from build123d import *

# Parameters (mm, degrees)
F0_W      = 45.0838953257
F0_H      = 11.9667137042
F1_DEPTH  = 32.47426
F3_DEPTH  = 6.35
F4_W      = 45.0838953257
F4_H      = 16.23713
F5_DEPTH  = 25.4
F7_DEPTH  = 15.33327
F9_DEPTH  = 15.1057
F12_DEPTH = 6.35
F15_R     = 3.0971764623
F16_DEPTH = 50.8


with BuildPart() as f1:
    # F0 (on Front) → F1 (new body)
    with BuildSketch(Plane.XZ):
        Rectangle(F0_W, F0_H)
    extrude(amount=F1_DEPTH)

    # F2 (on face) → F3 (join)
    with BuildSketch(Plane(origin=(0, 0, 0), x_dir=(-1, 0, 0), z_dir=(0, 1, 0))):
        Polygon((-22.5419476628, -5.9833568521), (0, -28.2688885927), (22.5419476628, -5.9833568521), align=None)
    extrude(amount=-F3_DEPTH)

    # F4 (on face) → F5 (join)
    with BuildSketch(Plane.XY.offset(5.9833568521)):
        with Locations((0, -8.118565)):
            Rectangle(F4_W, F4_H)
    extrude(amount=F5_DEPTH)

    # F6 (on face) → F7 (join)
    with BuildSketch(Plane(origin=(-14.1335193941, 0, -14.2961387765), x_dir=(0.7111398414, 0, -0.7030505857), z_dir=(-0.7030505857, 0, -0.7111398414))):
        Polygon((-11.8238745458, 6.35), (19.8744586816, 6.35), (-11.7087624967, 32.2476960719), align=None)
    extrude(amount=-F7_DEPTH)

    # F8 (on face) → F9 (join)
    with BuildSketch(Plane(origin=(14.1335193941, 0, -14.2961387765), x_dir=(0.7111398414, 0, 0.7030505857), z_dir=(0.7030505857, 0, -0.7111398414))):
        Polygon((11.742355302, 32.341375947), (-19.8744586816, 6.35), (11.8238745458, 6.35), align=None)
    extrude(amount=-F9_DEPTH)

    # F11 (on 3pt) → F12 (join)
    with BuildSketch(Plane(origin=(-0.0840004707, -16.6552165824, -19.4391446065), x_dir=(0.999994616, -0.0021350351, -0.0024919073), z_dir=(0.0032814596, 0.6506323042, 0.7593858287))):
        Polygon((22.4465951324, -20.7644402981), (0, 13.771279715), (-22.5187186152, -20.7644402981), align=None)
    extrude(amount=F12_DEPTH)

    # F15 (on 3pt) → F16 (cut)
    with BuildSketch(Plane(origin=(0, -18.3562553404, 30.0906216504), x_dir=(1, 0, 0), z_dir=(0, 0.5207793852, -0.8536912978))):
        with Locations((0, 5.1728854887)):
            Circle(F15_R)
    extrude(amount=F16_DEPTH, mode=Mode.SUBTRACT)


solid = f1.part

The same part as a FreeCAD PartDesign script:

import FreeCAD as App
import Part
import Sketcher
from FreeCAD import Vector
Q = App.Units.Quantity

doc = App.newDocument("Part")
body = doc.addObject("PartDesign::Body", "Body")

sketch1 = body.newObject("Sketcher::SketchObject", "Sketch")
sketch1.AttachmentSupport = (doc.getObject("XZ_Plane"), [""])
sketch1.MapMode = "FlatFace"
sketch1.addGeometry(Part.LineSegment(Vector(-23, 6, 0), Vector(-23, -6, 0)), False)
sketch1.addGeometry(Part.LineSegment(Vector(-23, -6, 0), Vector(23, -6, 0)), False)
sketch1.addGeometry(Part.LineSegment(Vector(23, -6, 0), Vector(23, 6, 0)), False)
sketch1.addGeometry(Part.LineSegment(Vector(23, 6, 0), Vector(-23, 6, 0)), False)
sketch1.addConstraint(Sketcher.Constraint("Coincident", 0, 2, 1, 1))
sketch1.addConstraint(Sketcher.Constraint("Coincident", 1, 2, 2, 1))
sketch1.addConstraint(Sketcher.Constraint("Coincident", 2, 2, 3, 1))
sketch1.addConstraint(Sketcher.Constraint("Coincident", 3, 2, 0, 1))
sketch1.addConstraint(Sketcher.Constraint("Vertical", 0))
sketch1.addConstraint(Sketcher.Constraint("Horizontal", 1))
sketch1.addConstraint(Sketcher.Constraint("Vertical", 2))
sketch1.addConstraint(Sketcher.Constraint("Horizontal", 3))
sketch1.addConstraint(Sketcher.Constraint("Symmetric", 0, 2, 2, 2, -1, 1))
sketch1.addConstraint(Sketcher.Constraint("DistanceX", 1, 1, 1, 2, Q("45.083895 mm")))
sketch1.addConstraint(Sketcher.Constraint("DistanceY", 0, 2, 0, 1, Q("11.966714 mm")))
pad1 = body.newObject("PartDesign::Pad", "Pad")
pad1.Profile = sketch1
pad1.Length = 32.47426

sketch2 = body.newObject("Sketcher::SketchObject", "Sketch001")
sketch2.AttachmentSupport = (doc.getObject("XZ_Plane"), [""])
sketch2.MapMode = "FlatFace"
sketch2.addGeometry(Part.LineSegment(Vector(23, -6, 0), Vector(0, -28, 0)), False)
sketch2.addGeometry(Part.LineSegment(Vector(0, -28, 0), Vector(-23, -6, 0)), False)
sketch2.addGeometry(Part.LineSegment(Vector(-23, -6, 0), Vector(23, -6, 0)), False)
sketch2.addConstraint(Sketcher.Constraint("Coincident", 0, 2, 1, 1))
sketch2.addConstraint(Sketcher.Constraint("Coincident", 1, 2, 2, 1))
sketch2.addConstraint(Sketcher.Constraint("Coincident", 2, 2, 0, 1))
sketch2.addConstraint(Sketcher.Constraint("Horizontal", 2))
sketch2.addConstraint(Sketcher.Constraint("PointOnObject", 0, 2, -2))
sketch2.addConstraint(Sketcher.Constraint("Equal", 0, 1))
sketch2.addConstraint(Sketcher.Constraint("DistanceX", 2, 1, 2, 2, Q("45.083895 mm")))
sketch2.addConstraint(Sketcher.Constraint("DistanceY", 0, 2, -1, 1, Q("28.268889 mm")))
sketch2.addConstraint(Sketcher.Constraint("DistanceY", 0, 2, 1, 2, Q("22.285532 mm")))
pad2 = body.newObject("PartDesign::Pad", "Pad001")
pad2.Profile = sketch2
pad2.Length = Q("0.25 in")

sketch3 = body.newObject("Sketcher::SketchObject", "Sketch002")
sketch3.AttachmentSupport = (doc.getObject("XY_Plane"), [""])
sketch3.MapMode = "FlatFace"
sketch3.AttachmentOffset = App.Placement(Vector(0, 0, 5.983357), App.Rotation())
sketch3.addGeometry(Part.LineSegment(Vector(-23, 0, 0), Vector(-23, -16, 0)), False)
sketch3.addGeometry(Part.LineSegment(Vector(-23, -16, 0), Vector(23, -16, 0)), False)
sketch3.addGeometry(Part.LineSegment(Vector(23, -16, 0), Vector(23, 0, 0)), False)
sketch3.addGeometry(Part.LineSegment(Vector(23, 0, 0), Vector(-23, 0, 0)), False)
sketch3.addConstraint(Sketcher.Constraint("Coincident", 0, 2, 1, 1))
sketch3.addConstraint(Sketcher.Constraint("Coincident", 1, 2, 2, 1))
sketch3.addConstraint(Sketcher.Constraint("Coincident", 2, 2, 3, 1))
sketch3.addConstraint(Sketcher.Constraint("Coincident", 3, 2, 0, 1))
sketch3.addConstraint(Sketcher.Constraint("Vertical", 0))
sketch3.addConstraint(Sketcher.Constraint("Horizontal", 1))
sketch3.addConstraint(Sketcher.Constraint("Vertical", 2))
sketch3.addConstraint(Sketcher.Constraint("Horizontal", 3))
sketch3.addConstraint(Sketcher.Constraint("Symmetric", 2, 2, 3, 2, -1, 1))
sketch3.addConstraint(Sketcher.Constraint("DistanceY", 0, 2, 0, 1, Q("16.23713 mm")))
sketch3.addConstraint(Sketcher.Constraint("DistanceX", 1, 1, 1, 2, Q("45.083895 mm")))
pad3 = body.newObject("PartDesign::Pad", "Pad002")
pad3.Profile = sketch3
pad3.Length = Q("1 in")

sketch4 = body.newObject("Sketcher::SketchObject", "Sketch003")
sketch4.Placement = App.Placement(Vector(-14.133519, 0, -14.296139), App.Rotation(Vector(0.711139841, 0, -0.703050586), Vector(0, -1, 0), Vector(-0.703050586, 0, -0.711139841), "ZXY"))
sketch4.addGeometry(Part.LineSegment(Vector(-12, 6, 0), Vector(20, 6, 0)), False)
sketch4.addGeometry(Part.LineSegment(Vector(20, 6, 0), Vector(-12, 32, 0)), False)
sketch4.addGeometry(Part.LineSegment(Vector(-12, 32, 0), Vector(-12, 6, 0)), False)
sketch4.addConstraint(Sketcher.Constraint("Coincident", 0, 2, 1, 1))
sketch4.addConstraint(Sketcher.Constraint("Coincident", 1, 2, 2, 1))
sketch4.addConstraint(Sketcher.Constraint("Coincident", 2, 2, 0, 1))
sketch4.addConstraint(Sketcher.Constraint("Horizontal", 0))
sketch4.addConstraint(Sketcher.Constraint("DistanceY", -1, 1, 0, 2, Q("0.25 in")))
sketch4.addConstraint(Sketcher.Constraint("Distance", 1, Q("40.843488 mm")))
sketch4.addConstraint(Sketcher.Constraint("Distance", 2, Q("25.897952 mm")))
sketch4.addConstraint(Sketcher.Constraint("DistanceX", 0, 1, 0, 2, Q("31.698333 mm")))
sketch4.addConstraint(Sketcher.Constraint("DistanceX", -1, 1, 0, 2, Q("19.874459 mm")))
pad4 = body.newObject("PartDesign::Pad", "Pad003")
pad4.Profile = sketch4
pad4.Length = 15.33327
pad4.Reversed = True

sketch5 = body.newObject("Sketcher::SketchObject", "Sketch004")
sketch5.Placement = App.Placement(Vector(14.133519, 0, -14.296139), App.Rotation(Vector(0.711139841, 0, 0.703050586), Vector(0, -1, 0), Vector(0.703050586, 0, -0.711139841), "ZXY"))
sketch5.addGeometry(Part.LineSegment(Vector(12, 32, 0), Vector(-20, 6, 0)), False)
sketch5.addGeometry(Part.LineSegment(Vector(-20, 6, 0), Vector(12, 6, 0)), False)
sketch5.addGeometry(Part.LineSegment(Vector(12, 6, 0), Vector(12, 32, 0)), False)
sketch5.addConstraint(Sketcher.Constraint("Coincident", 0, 2, 1, 1))
sketch5.addConstraint(Sketcher.Constraint("Coincident", 1, 2, 2, 1))
sketch5.addConstraint(Sketcher.Constraint("Coincident", 2, 2, 0, 1))
sketch5.addConstraint(Sketcher.Constraint("Horizontal", 1))
sketch5.addConstraint(Sketcher.Constraint("DistanceY", -1, 1, 0, 2, Q("0.25 in")))
sketch5.addConstraint(Sketcher.Constraint("DistanceX", 1, 1, 1, 2, Q("31.698333 mm")))
sketch5.addConstraint(Sketcher.Constraint("DistanceX", 0, 2, -1, 1, Q("19.874459 mm")))
sketch5.addConstraint(Sketcher.Constraint("DistanceX", 2, 2, 1, 2, Q("0.081519 mm")))
sketch5.addConstraint(Sketcher.Constraint("Distance", 0, Q("40.928896 mm")))
pad5 = body.newObject("PartDesign::Pad", "Pad004")
pad5.Profile = sketch5
pad5.Length = 15.1057
pad5.Reversed = True

sketch6 = body.newObject("Sketcher::SketchObject", "Sketch005")
sketch6.Placement = App.Placement(Vector(-0.084, -16.655217, -19.439145), App.Rotation(Vector(0.999994616, -0.002135035, -0.002491907), Vector(0, 0.759389918, -0.650635807), Vector(0.00328146, 0.650632304, 0.759385829), "ZXY"))
sketch6.addGeometry(Part.LineSegment(Vector(22, -21, 0), Vector(0, 14, 0)), False)
sketch6.addGeometry(Part.LineSegment(Vector(0, 14, 0), Vector(-23, -21, 0)), False)
sketch6.addGeometry(Part.LineSegment(Vector(-23, -21, 0), Vector(22, -21, 0)), False)
sketch6.addConstraint(Sketcher.Constraint("Coincident", 0, 2, 1, 1))
sketch6.addConstraint(Sketcher.Constraint("Coincident", 1, 2, 2, 1))
sketch6.addConstraint(Sketcher.Constraint("Coincident", 2, 2, 0, 1))
sketch6.addConstraint(Sketcher.Constraint("Horizontal", 2))
sketch6.addConstraint(Sketcher.Constraint("PointOnObject", 0, 2, -2))
sketch6.addConstraint(Sketcher.Constraint("DistanceX", 2, 1, 2, 2, Q("44.965314 mm")))
sketch6.addConstraint(Sketcher.Constraint("DistanceY", -1, 1, 0, 2, Q("13.77128 mm")))
sketch6.addConstraint(Sketcher.Constraint("DistanceX", 1, 2, -1, 1, Q("22.518719 mm")))
sketch6.addConstraint(Sketcher.Constraint("DistanceY", 1, 2, -1, 1, Q("20.76444 mm")))
pad6 = body.newObject("PartDesign::Pad", "Pad005")
pad6.Profile = sketch6
pad6.Length = Q("0.25 in")

sketch7 = body.newObject("Sketcher::SketchObject", "Sketch006")
sketch7.Placement = App.Placement(Vector(0, -18.356255, 30.090622), App.Rotation(Vector(1, 0, 0), Vector(0, -0.853691298, -0.520779385), Vector(0, 0.520779385, -0.853691298), "ZXY"))
sketch7.addGeometry(Part.Circle(Vector(0, 5.2, 0), Vector(0, 0, 1), 3.1), False)
sketch7.addConstraint(Sketcher.Constraint("PointOnObject", 0, 3, -2))
sketch7.addConstraint(Sketcher.Constraint("Diameter", 0, Q("6.194353 mm")))
sketch7.addConstraint(Sketcher.Constraint("DistanceY", -1, 1, 0, 3, Q("5.172885 mm")))
pocket1 = body.newObject("PartDesign::Pocket", "Pocket")
pocket1.Profile = sketch7
pocket1.Length = Q("2 in")
pocket1.Reversed = True

doc.recompute()
